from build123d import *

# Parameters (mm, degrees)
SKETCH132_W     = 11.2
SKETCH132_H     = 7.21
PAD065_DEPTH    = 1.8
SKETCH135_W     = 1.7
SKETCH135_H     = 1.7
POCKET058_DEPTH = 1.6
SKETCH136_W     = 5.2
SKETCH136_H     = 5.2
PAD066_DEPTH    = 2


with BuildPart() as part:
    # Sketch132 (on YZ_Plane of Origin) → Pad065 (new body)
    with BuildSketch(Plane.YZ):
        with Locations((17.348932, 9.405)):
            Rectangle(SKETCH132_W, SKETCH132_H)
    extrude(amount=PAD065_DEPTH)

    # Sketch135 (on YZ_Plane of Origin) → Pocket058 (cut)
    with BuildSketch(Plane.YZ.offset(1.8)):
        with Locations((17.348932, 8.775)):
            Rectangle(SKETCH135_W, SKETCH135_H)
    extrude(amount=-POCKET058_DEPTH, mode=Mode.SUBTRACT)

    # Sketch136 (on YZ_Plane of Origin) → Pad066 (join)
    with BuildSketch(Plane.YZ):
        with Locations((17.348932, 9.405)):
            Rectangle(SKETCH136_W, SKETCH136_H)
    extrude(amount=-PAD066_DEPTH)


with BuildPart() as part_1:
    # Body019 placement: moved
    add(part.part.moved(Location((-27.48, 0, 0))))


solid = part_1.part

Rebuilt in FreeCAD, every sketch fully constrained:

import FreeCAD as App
import Part
import Sketcher

V = App.Vector

doc = App.newDocument("Part")
body = doc.addObject("PartDesign::Body", "Body")

sketch1 = doc.addObject("Sketcher::SketchObject", "Sketch")
body.addObject(sketch1)
sketch1.AttachmentSupport = (doc.YZ_Plane, [""])
sketch1.MapMode = "FlatFace"
sketch1.addGeometry([
    Part.LineSegment(V(12, 13, 0), V(12, 6, 0)),
    Part.LineSegment(V(12, 6, 0), V(23, 6, 0)),
    Part.LineSegment(V(23, 6, 0), V(23, 13, 0)),
    Part.LineSegment(V(23, 13, 0), V(12, 13, 0)),
], False)
sketch1.addConstraint([
    Sketcher.Constraint("Coincident", 0, 2, 1, 1),
    Sketcher.Constraint("Coincident", 1, 2, 2, 1),
    Sketcher.Constraint("Coincident", 2, 2, 3, 1),
    Sketcher.Constraint("Coincident", 3, 2, 0, 1),
    Sketcher.Constraint("Vertical", 0),
    Sketcher.Constraint("Horizontal", 1),
    Sketcher.Constraint("Vertical", 2),
    Sketcher.Constraint("Horizontal", 3),
    Sketcher.Constraint("DistanceX", 1, 1, 1, 2, 11.2),
    Sketcher.Constraint("DistanceY", 0, 2, 0, 1, 7.21),
    Sketcher.Constraint("DistanceY", -1, 1, 0, 2, 5.8),
    Sketcher.Constraint("DistanceX", -1, 1, 1, 2, 22.948932),
])
pad1 = doc.addObject("PartDesign::Pad", "Pad")
body.addObject(pad1)
pad1.Profile = sketch1
pad1.Length = 1.8

sketch2 = doc.addObject("Sketcher::SketchObject", "Sketch001")
body.addObject(sketch2)
sketch2.AttachmentSupport = (doc.YZ_Plane, [""])
sketch2.MapMode = "FlatFace"
sketch2.AttachmentOffset = App.Placement(V(0, 0, 1.8), App.Rotation())
sketch2.addGeometry([
    Part.LineSegment(V(16.5, 9.6, 0), V(16.5, 7.9, 0)),
    Part.LineSegment(V(16.5, 7.9, 0), V(18.2, 7.9, 0)),
    Part.LineSegment(V(18.2, 7.9, 0), V(18.2, 9.6, 0)),
    Part.LineSegment(V(18.2, 9.6, 0), V(16.5, 9.6, 0)),
], False)
sketch2.addConstraint([
    Sketcher.Constraint("Coincident", 0, 2, 1, 1),
    Sketcher.Constraint("Coincident", 1, 2, 2, 1),
    Sketcher.Constraint("Coincident", 2, 2, 3, 1),
    Sketcher.Constraint("Coincident", 3, 2, 0, 1),
    Sketcher.Constraint("Vertical", 0),
    Sketcher.Constraint("Horizontal", 1),
    Sketcher.Constraint("Vertical", 2),
    Sketcher.Constraint("Horizontal", 3),
    Sketcher.Constraint("Equal", 3, 0),
    Sketcher.Constraint("DistanceX", 1, 1, 1, 2, 1.7),
    Sketcher.Constraint("DistanceY", -1, 1, 0, 2, 7.925),
    Sketcher.Constraint("DistanceX", -1, 1, 0, 2, 16.498932),
])
pocket1 = doc.addObject("PartDesign::Pocket", "Pocket")
body.addObject(pocket1)
pocket1.Profile = sketch2
pocket1.Length = 1.6

sketch3 = doc.addObject("Sketcher::SketchObject", "Sketch002")
body.addObject(sketch3)
sketch3.AttachmentSupport = (doc.YZ_Plane, [""])
sketch3.MapMode = "FlatFace"
sketch3.addGeometry([
    Part.LineSegment(V(15, 12, 0), V(15, 7, 0)),
    Part.LineSegment(V(15, 7, 0), V(20, 7, 0)),
    Part.LineSegment(V(20, 7, 0), V(20, 12, 0)),
    Part.LineSegment(V(20, 12, 0), V(15, 12, 0)),
], False)
sketch3.addConstraint([
    Sketcher.Constraint("Coincident", 0, 2, 1, 1),
    Sketcher.Constraint("Coincident", 1, 2, 2, 1),
    Sketcher.Constraint("Coincident", 2, 2, 3, 1),
    Sketcher.Constraint("Coincident", 3, 2, 0, 1),
    Sketcher.Constraint("Vertical", 0),
    Sketcher.Constraint("Horizontal", 1),
    Sketcher.Constraint("Vertical", 2),
    Sketcher.Constraint("Horizontal", 3),
    Sketcher.Constraint("Equal", 3, 0),
    Sketcher.Constraint("DistanceX", 1, 1, 1, 2, 5.2),
    Sketcher.Constraint("DistanceY", -1, 1, 0, 2, 6.805),
    Sketcher.Constraint("DistanceX", -1, 1, 1, 2, 19.948932),
])
pad2 = doc.addObject("PartDesign::Pad", "Pad001")
body.addObject(pad2)
pad2.Profile = sketch3
pad2.Length = 2
pad2.Reversed = True
body2 = doc.addObject("PartDesign::Body", "Body001")
doc.recompute()

body.Placement = App.Placement(V(-27.48, 0, 0), App.Rotation(V(0, 0, 1), 0))
boolean = doc.addObject("PartDesign::Boolean", "Boolean")
body2.addObject(boolean)
boolean.Type = "Fuse"
boolean.addObjects([body])

doc.recompute()
